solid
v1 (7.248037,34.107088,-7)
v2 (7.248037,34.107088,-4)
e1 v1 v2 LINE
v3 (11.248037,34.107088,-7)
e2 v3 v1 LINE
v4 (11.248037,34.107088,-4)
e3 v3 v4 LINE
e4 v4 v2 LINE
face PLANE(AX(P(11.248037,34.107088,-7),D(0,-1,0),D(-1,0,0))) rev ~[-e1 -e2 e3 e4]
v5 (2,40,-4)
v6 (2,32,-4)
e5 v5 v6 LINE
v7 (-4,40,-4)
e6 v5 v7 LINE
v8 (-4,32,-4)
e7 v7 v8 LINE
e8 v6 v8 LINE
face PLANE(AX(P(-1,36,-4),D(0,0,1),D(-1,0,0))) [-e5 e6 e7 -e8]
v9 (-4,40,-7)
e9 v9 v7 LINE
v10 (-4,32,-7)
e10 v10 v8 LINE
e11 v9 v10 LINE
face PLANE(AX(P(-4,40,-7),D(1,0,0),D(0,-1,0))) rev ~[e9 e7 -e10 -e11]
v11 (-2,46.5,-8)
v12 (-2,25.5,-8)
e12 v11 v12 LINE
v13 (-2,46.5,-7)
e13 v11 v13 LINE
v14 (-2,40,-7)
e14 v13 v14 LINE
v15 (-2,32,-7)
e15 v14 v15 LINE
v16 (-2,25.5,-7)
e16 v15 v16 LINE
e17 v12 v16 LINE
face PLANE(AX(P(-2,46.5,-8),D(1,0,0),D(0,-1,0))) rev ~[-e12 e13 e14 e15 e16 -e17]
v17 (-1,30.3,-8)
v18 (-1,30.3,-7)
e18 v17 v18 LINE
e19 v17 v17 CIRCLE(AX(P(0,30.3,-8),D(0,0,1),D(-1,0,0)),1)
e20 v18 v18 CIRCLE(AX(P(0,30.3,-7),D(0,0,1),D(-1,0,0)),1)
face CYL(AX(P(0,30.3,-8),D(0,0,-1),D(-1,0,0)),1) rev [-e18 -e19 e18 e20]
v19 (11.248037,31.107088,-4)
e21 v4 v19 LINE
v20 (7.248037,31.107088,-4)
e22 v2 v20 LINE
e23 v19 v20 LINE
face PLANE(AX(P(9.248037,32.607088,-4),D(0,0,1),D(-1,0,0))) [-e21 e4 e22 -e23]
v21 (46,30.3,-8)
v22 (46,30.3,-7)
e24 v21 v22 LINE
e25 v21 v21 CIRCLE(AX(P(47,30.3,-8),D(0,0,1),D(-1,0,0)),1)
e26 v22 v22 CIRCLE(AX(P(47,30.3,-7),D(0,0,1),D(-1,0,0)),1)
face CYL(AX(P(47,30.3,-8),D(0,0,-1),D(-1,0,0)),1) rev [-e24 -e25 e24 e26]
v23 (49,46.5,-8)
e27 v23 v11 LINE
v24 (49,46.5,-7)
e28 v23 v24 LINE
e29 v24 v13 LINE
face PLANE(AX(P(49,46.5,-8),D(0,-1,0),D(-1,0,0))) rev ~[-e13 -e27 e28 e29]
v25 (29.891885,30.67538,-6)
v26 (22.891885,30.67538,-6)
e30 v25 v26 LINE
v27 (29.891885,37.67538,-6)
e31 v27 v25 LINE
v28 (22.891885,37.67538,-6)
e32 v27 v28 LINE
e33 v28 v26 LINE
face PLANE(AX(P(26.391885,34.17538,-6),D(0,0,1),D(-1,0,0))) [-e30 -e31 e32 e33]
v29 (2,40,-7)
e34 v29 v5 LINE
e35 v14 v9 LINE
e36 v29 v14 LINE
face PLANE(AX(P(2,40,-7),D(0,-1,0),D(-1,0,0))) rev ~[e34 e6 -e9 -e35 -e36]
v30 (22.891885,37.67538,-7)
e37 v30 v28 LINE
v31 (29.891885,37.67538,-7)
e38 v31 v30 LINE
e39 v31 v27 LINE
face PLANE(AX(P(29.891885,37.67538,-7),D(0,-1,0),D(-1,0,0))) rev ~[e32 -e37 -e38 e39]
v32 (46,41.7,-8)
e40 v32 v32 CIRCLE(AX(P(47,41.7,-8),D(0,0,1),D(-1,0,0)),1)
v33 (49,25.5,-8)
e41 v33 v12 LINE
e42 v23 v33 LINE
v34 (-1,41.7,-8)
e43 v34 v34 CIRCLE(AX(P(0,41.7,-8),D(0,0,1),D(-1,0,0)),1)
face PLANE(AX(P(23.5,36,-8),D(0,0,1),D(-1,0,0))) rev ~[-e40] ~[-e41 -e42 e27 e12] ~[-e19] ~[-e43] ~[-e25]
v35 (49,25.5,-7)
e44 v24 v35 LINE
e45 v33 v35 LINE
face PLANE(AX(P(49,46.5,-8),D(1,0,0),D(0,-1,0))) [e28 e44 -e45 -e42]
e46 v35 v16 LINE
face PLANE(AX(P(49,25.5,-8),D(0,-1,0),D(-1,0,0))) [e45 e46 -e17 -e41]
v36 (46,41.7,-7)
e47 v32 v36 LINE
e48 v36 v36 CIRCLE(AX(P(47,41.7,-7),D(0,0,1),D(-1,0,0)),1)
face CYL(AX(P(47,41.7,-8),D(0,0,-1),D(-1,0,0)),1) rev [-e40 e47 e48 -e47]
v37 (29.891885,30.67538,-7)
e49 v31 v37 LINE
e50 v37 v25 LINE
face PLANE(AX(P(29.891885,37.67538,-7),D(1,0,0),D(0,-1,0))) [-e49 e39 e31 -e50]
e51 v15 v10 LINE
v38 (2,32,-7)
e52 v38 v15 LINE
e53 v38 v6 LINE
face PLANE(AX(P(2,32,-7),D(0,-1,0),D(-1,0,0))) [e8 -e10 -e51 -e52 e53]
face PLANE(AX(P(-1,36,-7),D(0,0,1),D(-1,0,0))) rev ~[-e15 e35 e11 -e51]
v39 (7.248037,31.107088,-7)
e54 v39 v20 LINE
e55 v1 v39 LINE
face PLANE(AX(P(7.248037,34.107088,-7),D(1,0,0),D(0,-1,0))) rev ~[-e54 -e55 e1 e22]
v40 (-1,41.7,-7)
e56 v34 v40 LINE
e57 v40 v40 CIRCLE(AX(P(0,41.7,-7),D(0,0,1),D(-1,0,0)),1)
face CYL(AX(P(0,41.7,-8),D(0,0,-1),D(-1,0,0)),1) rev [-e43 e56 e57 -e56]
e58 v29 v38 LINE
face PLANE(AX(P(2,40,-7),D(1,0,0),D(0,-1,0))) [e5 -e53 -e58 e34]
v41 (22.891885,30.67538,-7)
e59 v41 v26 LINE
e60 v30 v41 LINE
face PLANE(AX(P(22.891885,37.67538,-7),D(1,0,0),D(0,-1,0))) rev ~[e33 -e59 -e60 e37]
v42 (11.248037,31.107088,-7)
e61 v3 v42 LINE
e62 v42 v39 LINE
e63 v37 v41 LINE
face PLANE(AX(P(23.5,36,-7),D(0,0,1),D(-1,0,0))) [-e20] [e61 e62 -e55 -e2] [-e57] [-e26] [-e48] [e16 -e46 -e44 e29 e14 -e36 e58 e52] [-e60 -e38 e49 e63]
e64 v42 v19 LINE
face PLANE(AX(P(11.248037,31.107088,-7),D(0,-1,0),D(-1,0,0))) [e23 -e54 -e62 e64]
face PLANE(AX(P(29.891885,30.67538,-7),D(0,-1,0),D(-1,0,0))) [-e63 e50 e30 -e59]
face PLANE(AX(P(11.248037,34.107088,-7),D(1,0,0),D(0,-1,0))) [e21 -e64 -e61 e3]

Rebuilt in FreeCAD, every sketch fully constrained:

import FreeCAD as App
import Part
import Sketcher


def add_polygon(sketch, points):
    """Adds a closed chain of lines whose ends are joined by coincident constraints."""
    first, n = sketch.GeometryCount, len(points)
    for a, b in zip(points, points[1:] + points[:1]):
        sketch.addGeometry(Part.LineSegment(App.Vector(*a, 0), App.Vector(*b, 0)), False)
    for i in range(n):
        sketch.addConstraint(Sketcher.Constraint("Coincident", first + i, 2, first + (i + 1) % n, 1))

doc = App.newDocument("Part")
body = doc.addObject("PartDesign::Body", "Body")

sketch1 = doc.addObject("Sketcher::SketchObject", "Sketch")
body.addObject(sketch1)
sketch1.AttachmentSupport = (doc.XY_Plane, [""])
sketch1.MapMode = "FlatFace"
add_polygon(sketch1, [(-51, 21), (-51, 0), (0, 0), (0, 21)])
sketch1.addGeometry(Part.Circle(App.Vector(-49, 4.8, 0), App.Vector(0, 0, 1), 1), False)
sketch1.addGeometry(Part.Circle(App.Vector(-2, 4.8, 0), App.Vector(0, 0, 1), 1), False)
sketch1.addGeometry(Part.Circle(App.Vector(-49, 16.2, 0), App.Vector(0, 0, 1), 1), False)
sketch1.addGeometry(Part.Circle(App.Vector(-2, 16.2, 0), App.Vector(0, 0, 1), 1), False)
sketch1.addConstraint(Sketcher.Constraint("Vertical", 0))
sketch1.addConstraint(Sketcher.Constraint("Horizontal", 1))
sketch1.addConstraint(Sketcher.Constraint("Vertical", 2))
sketch1.addConstraint(Sketcher.Constraint("Horizontal", 3))
sketch1.addConstraint(Sketcher.Constraint("Coincident", 1, 2, -1, 1))
sketch1.addConstraint(Sketcher.Constraint("Equal", 4, 5))
sketch1.addConstraint(Sketcher.Constraint("Equal", 5, 6))
sketch1.addConstraint(Sketcher.Constraint("Equal", 6, 7))
sketch1.addConstraint(Sketcher.Constraint("Horizontal", 4, 3, 5, 3))
sketch1.addConstraint(Sketcher.Constraint("Horizontal", 6, 3, 7, 3))
sketch1.addConstraint(Sketcher.Constraint("Vertical", 4, 3, 6, 3))
sketch1.addConstraint(Sketcher.Constraint("Vertical", 5, 3, 7, 3))
sketch1.addConstraint(Sketcher.Constraint("Diameter", 4, 2.0))
sketch1.addConstraint(Sketcher.Constraint("DistanceX", 1, 1, 1, 2, 51.0))
sketch1.addConstraint(Sketcher.Constraint("DistanceY", 0, 2, 0, 1, 21.0))
sketch1.addConstraint(Sketcher.Constraint("DistanceX", 4, 3, -1, 1, 49.0))
sketch1.addConstraint(Sketcher.Constraint("DistanceX", 5, 3, -1, 1, 2.0))
sketch1.addConstraint(Sketcher.Constraint("DistanceY", -1, 1, 4, 3, 4.8))
sketch1.addConstraint(Sketcher.Constraint("DistanceY", -1, 1, 6, 3, 16.2))
pad1 = doc.addObject("PartDesign::Pad", "Pad")
body.addObject(pad1)
pad1.Profile = sketch1
pad1.Length = 1

sketch2 = doc.addObject("Sketcher::SketchObject", "Sketch001")
body.addObject(sketch2)
sketch2.AttachmentSupport = (doc.XY_Plane, [""])
sketch2.MapMode = "FlatFace"
sketch2.AttachmentOffset = App.Placement(App.Vector(0, 0, 1), App.Rotation())
add_polygon(sketch2, [(-4, 14.5), (-4, 6.5), (2, 6.5), (2, 14.5)])
add_polygon(sketch2, [(-13.2, 15.4), (-13.2, 12.4), (-9.2, 12.4), (-9.2, 15.4)])
sketch2.addConstraint(Sketcher.Constraint("Vertical", 0))
sketch2.addConstraint(Sketcher.Constraint("Horizontal", 1))
sketch2.addConstraint(Sketcher.Constraint("Vertical", 2))
sketch2.addConstraint(Sketcher.Constraint("Horizontal", 3))
sketch2.addConstraint(Sketcher.Constraint("Vertical", 4))
sketch2.addConstraint(Sketcher.Constraint("Horizontal", 5))
sketch2.addConstraint(Sketcher.Constraint("Vertical", 6))
sketch2.addConstraint(Sketcher.Constraint("Horizontal", 7))
sketch2.addConstraint(Sketcher.Constraint("DistanceX", 1, 1, 1, 2, 6.0))
sketch2.addConstraint(Sketcher.Constraint("DistanceX", 5, 1, 5, 2, 4.0))
sketch2.addConstraint(Sketcher.Constraint("DistanceY", 0, 2, 0, 1, 8.0))
sketch2.addConstraint(Sketcher.Constraint("DistanceY", 4, 2, 4, 1, 3.0))
sketch2.addConstraint(Sketcher.Constraint("DistanceX", 0, 2, -1, 1, 4.0))
sketch2.addConstraint(Sketcher.Constraint("DistanceY", -1, 1, 0, 2, 6.5))
sketch2.addConstraint(Sketcher.Constraint("DistanceX", 4, 2, -1, 1, 13.248037))
sketch2.addConstraint(Sketcher.Constraint("DistanceY", -1, 1, 4, 2, 12.392912))
pad2 = doc.addObject("PartDesign::Pad", "Pad001")
body.addObject(pad2)
pad2.Profile = sketch2
pad2.Length = 3

sketch3 = doc.addObject("Sketcher::SketchObject", "Sketch002")
body.addObject(sketch3)
sketch3.AttachmentSupport = (doc.XY_Plane, [""])
sketch3.MapMode = "FlatFace"
sketch3.AttachmentOffset = App.Placement(App.Vector(0, 0, 1), App.Rotation())
add_polygon(sketch3, [(-32, 16), (-32, 9), (-25, 9), (-25, 16)])
sketch3.addConstraint(Sketcher.Constraint("Vertical", 0))
sketch3.addConstraint(Sketcher.Constraint("Horizontal", 1))
sketch3.addConstraint(Sketcher.Constraint("Vertical", 2))
sketch3.addConstraint(Sketcher.Constraint("Horizontal", 3))
sketch3.addConstraint(Sketcher.Constraint("Equal", 3, 0))
sketch3.addConstraint(Sketcher.Constraint("DistanceX", 1, 1, 1, 2, 7.0))
sketch3.addConstraint(Sketcher.Constraint("DistanceY", -1, 1, 0, 2, 8.82462))
sketch3.addConstraint(Sketcher.Constraint("DistanceX", 0, 2, -1, 1, 31.891885))
pad3 = doc.addObject("PartDesign::Pad", "Pad002")
body.addObject(pad3)
pad3.Profile = sketch3
pad3.Length = 1
body2 = doc.addObject("PartDesign::Body", "Body001")
doc.recompute()

body.Placement = App.Placement(App.Vector(-2, 46.5, -8), App.Rotation(App.Vector(0, 0, 1), 180))
boolean = doc.addObject("PartDesign::Boolean", "Boolean")
body2.addObject(boolean)
boolean.Type = "Fuse"
boolean.addObjects([body])

doc.recompute()
